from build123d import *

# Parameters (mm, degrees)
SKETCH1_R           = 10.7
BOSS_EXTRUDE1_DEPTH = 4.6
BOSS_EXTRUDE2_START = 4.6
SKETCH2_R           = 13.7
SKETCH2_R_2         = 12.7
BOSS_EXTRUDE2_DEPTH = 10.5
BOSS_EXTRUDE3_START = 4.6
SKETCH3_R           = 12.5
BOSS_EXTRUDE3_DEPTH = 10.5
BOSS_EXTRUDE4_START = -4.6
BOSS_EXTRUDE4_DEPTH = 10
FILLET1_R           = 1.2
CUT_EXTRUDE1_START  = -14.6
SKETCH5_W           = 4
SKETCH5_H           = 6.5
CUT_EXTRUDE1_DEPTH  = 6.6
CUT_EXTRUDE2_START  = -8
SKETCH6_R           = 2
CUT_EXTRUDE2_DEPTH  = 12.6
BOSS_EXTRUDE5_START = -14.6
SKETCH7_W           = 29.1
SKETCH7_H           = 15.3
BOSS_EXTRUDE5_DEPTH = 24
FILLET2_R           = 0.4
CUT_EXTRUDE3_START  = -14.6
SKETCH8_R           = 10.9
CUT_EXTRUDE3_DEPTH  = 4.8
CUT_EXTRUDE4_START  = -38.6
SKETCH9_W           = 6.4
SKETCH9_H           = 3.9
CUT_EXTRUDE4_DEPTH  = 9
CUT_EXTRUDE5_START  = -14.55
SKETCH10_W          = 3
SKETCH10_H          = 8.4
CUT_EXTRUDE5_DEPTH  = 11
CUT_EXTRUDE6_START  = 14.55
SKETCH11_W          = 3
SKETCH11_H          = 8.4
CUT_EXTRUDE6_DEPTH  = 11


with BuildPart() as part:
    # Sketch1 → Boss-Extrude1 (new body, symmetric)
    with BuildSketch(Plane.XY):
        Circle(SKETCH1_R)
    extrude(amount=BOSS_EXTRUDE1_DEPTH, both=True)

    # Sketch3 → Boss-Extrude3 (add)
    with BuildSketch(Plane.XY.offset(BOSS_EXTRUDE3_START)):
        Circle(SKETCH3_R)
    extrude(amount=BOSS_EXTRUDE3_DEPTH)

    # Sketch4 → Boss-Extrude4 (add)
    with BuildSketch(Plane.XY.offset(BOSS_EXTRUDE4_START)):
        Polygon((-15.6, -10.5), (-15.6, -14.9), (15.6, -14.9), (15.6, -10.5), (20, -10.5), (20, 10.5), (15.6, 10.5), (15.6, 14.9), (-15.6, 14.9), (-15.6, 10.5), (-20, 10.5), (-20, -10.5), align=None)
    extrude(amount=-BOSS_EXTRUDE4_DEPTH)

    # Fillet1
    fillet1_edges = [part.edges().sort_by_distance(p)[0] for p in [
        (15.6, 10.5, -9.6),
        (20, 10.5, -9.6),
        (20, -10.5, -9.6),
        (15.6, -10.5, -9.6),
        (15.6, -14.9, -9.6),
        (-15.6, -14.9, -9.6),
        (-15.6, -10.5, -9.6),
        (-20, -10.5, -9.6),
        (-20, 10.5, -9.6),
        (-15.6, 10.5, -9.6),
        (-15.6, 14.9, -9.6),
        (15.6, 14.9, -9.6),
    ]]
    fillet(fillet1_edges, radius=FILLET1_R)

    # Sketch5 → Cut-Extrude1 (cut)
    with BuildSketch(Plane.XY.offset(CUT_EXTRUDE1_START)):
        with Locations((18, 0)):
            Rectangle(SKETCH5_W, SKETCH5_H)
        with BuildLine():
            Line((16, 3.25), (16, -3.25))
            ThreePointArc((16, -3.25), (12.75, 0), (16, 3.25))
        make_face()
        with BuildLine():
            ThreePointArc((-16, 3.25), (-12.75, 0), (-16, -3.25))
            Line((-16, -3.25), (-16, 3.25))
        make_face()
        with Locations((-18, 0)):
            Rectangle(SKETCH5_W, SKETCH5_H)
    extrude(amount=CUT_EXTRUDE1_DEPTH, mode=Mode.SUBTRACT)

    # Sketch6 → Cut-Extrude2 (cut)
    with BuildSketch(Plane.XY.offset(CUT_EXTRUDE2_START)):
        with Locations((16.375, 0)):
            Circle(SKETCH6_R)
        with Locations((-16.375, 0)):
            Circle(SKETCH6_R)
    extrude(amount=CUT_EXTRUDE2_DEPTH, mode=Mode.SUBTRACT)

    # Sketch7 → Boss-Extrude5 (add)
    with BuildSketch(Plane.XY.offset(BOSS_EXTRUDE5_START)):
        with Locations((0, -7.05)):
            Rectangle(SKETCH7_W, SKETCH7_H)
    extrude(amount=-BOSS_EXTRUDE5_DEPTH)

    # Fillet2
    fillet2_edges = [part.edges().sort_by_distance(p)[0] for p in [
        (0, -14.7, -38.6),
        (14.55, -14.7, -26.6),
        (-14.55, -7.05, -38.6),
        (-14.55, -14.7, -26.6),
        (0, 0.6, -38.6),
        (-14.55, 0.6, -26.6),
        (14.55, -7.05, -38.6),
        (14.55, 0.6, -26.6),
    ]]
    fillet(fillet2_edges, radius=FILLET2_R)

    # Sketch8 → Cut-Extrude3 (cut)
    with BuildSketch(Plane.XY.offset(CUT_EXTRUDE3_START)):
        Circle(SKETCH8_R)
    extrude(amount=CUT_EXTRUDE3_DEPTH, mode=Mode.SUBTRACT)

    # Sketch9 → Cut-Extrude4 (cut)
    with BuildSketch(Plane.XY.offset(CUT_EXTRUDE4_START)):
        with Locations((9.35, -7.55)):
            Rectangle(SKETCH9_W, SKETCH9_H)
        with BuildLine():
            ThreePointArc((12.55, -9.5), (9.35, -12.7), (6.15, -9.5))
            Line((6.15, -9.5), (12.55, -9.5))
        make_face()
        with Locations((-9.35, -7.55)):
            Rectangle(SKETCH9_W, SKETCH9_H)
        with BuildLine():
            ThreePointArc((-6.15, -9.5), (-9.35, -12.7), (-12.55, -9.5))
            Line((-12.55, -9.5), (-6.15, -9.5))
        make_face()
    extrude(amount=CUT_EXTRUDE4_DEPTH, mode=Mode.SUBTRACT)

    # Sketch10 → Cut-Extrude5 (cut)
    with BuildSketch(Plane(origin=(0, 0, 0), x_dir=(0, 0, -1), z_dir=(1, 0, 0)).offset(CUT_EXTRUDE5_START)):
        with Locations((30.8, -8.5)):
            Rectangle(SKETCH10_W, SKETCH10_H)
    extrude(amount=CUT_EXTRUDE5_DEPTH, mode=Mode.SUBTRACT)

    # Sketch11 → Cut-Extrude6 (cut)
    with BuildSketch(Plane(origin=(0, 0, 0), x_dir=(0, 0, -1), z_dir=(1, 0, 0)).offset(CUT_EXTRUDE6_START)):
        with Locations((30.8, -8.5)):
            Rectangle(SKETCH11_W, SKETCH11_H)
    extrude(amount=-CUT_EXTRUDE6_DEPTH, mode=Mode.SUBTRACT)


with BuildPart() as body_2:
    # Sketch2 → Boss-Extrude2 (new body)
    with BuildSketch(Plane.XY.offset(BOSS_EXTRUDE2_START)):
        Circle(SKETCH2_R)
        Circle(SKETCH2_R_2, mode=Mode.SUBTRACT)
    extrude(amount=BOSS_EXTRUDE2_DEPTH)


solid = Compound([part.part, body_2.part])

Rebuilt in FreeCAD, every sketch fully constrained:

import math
import FreeCAD as App
import Part
import Sketcher

V = App.Vector
Q = App.Units.Quantity


def edges_at(feature, points):
    """Names of the edges that pass closest to the given points."""
    edges = feature.Shape.Edges
    near = lambda p: min(range(len(edges)), key=lambda i: edges[i].distToShape(Part.Vertex(*p))[0])
    return sorted({f"Edge{near(p) + 1}" for p in points})

doc = App.newDocument("Part")
body = doc.addObject("PartDesign::Body", "Body")

sketch1 = doc.addObject("Sketcher::SketchObject", "Sketch")
body.addObject(sketch1)
sketch1.AttachmentSupport = (doc.XY_Plane, [""])
sketch1.MapMode = "FlatFace"
sketch1.addGeometry(Part.Circle(V(0, 0, 0), V(0, 0, 1), 11), False)
sketch1.addConstraint([
    Sketcher.Constraint("Coincident", 0, 3, -1, 1),
    Sketcher.Constraint("Diameter", 0, Q("21.4 mm")),
])
pad1 = doc.addObject("PartDesign::Pad", "Pad")
body.addObject(pad1)
pad1.Profile = sketch1
pad1.Length = 9.2
pad1.Midplane = True

sketch2 = doc.addObject("Sketcher::SketchObject", "Sketch001")
body.addObject(sketch2)
sketch2.AttachmentSupport = (doc.XY_Plane, [""])
sketch2.MapMode = "FlatFace"
sketch2.AttachmentOffset = App.Placement(V(0, 0, 4.6), App.Rotation())
sketch2.addGeometry(Part.Circle(V(0, 0, 0), V(0, 0, 1), 12), False)
sketch2.addConstraint([
    Sketcher.Constraint("Coincident", 0, 3, -1, 1),
    Sketcher.Constraint("Diameter", 0, Q("25 mm")),
])
pad2 = doc.addObject("PartDesign::Pad", "Pad001")
body.addObject(pad2)
pad2.Profile = sketch2
pad2.Length = 10.5

sketch3 = doc.addObject("Sketcher::SketchObject", "Sketch002")
body.addObject(sketch3)
sketch3.AttachmentSupport = (doc.XY_Plane, [""])
sketch3.MapMode = "FlatFace"
sketch3.AttachmentOffset = App.Placement(V(0, 0, -4.6), App.Rotation())
sketch3.addGeometry([
    Part.LineSegment(V(-15.6, -10.5, 0), V(-15.6, -14.9, 0)),
    Part.LineSegment(V(-15.6, -14.9, 0), V(15.6, -14.9, 0)),
    Part.LineSegment(V(15.6, -14.9, 0), V(15.6, -10.5, 0)),
    Part.LineSegment(V(15.6, -10.5, 0), V(20, -10.5, 0)),
    Part.LineSegment(V(20, -10.5, 0), V(20, 10.5, 0)),
    Part.LineSegment(V(20, 10.5, 0), V(15.6, 10.5, 0)),
    Part.LineSegment(V(15.6, 10.5, 0), V(15.6, 14.9, 0)),
    Part.LineSegment(V(15.6, 14.9, 0), V(-15.6, 14.9, 0)),
    Part.LineSegment(V(-15.6, 14.9, 0), V(-15.6, 10.5, 0)),
    Part.LineSegment(V(-15.6, 10.5, 0), V(-20, 10.5, 0)),
    Part.LineSegment(V(-20, 10.5, 0), V(-20, -10.5, 0)),
    Part.LineSegment(V(-20, -10.5, 0), V(-15.6, -10.5, 0)),
], False)
sketch3.addConstraint([
    Sketcher.Constraint("Coincident", 0, 2, 1, 1),
    Sketcher.Constraint("Coincident", 1, 2, 2, 1),
    Sketcher.Constraint("Coincident", 2, 2, 3, 1),
    Sketcher.Constraint("Coincident", 3, 2, 4, 1),
    Sketcher.Constraint("Coincident", 4, 2, 5, 1),
    Sketcher.Constraint("Coincident", 5, 2, 6, 1),
    Sketcher.Constraint("Coincident", 6, 2, 7, 1),
    Sketcher.Constraint("Coincident", 7, 2, 8, 1),
    Sketcher.Constraint("Coincident", 8, 2, 9, 1),
    Sketcher.Constraint("Coincident", 9, 2, 10, 1),
    Sketcher.Constraint("Coincident", 10, 2, 11, 1),
    Sketcher.Constraint("Coincident", 11, 2, 0, 1),
    Sketcher.Constraint("Vertical", 0),
    Sketcher.Constraint("Horizontal", 1),
    Sketcher.Constraint("Vertical", 2),
    Sketcher.Constraint("Horizontal", 3),
    Sketcher.Constraint("Vertical", 4),
    Sketcher.Constraint("Horizontal", 5),
    Sketcher.Constraint("Vertical", 6),
    Sketcher.Constraint("Horizontal", 7),
    Sketcher.Constraint("Vertical", 8),
    Sketcher.Constraint("Horizontal", 9),
    Sketcher.Constraint("Vertical", 10),
    Sketcher.Constraint("Horizontal", 11),
    Sketcher.Constraint("Symmetric", 0, 2, 6, 2, -1, 1),
    Sketcher.Constraint("Symmetric", 2, 2, 8, 2, -1, 1),
    Sketcher.Constraint("Symmetric", 4, 2, 10, 2, -1, 1),
    Sketcher.Constraint("Symmetric", 5, 2, 8, 2, -2),
    Sketcher.Constraint("Equal", 11, 0),
    Sketcher.Constraint("DistanceY", 4, 1, 4, 2, Q("21 mm")),
    Sketcher.Constraint("DistanceX", 1, 1, 1, 2, Q("31.2 mm")),
    Sketcher.Constraint("DistanceX", 3, 1, 3, 2, Q("4.4 mm")),
])
pad3 = doc.addObject("PartDesign::Pad", "Pad002")
body.addObject(pad3)
pad3.Profile = sketch3
pad3.Length = 10
pad3.Reversed = True
doc.recompute()

fillet = doc.addObject("PartDesign::Fillet", "Fillet")
body.addObject(fillet)
fillet.Base = (pad3, edges_at(pad3, [
    (15.6, 10.5, -9.6),
    (20, 10.5, -9.6),
    (20, -10.5, -9.6),
    (15.6, -10.5, -9.6),
    (15.6, -14.9, -9.6),
    (-15.6, -14.9, -9.6),
    (-15.6, -10.5, -9.6),
    (-20, -10.5, -9.6),
    (-20, 10.5, -9.6),
    (-15.6, 10.5, -9.6),
    (-15.6, 14.9, -9.6),
    (15.6, 14.9, -9.6),
]))
fillet.Radius = 1.2

sketch4 = doc.addObject("Sketcher::SketchObject", "Sketch003")
body.addObject(sketch4)
sketch4.AttachmentSupport = (doc.XY_Plane, [""])
sketch4.MapMode = "FlatFace"
sketch4.AttachmentOffset = App.Placement(V(0, 0, -14.6), App.Rotation())
sketch4.addGeometry([
    Part.LineSegment(V(16, -3.2, 0), V(20, -3.2, 0)),
    Part.LineSegment(V(20, -3.2, 0), V(20, 3.2, 0)),
    Part.LineSegment(V(20, 3.2, 0), V(16, 3.2, 0)),
    Part.ArcOfCircle(Part.Circle(V(16, 0, 0), V(0, 0, 1), 3.2), math.radians(90), math.radians(270)),
    Part.ArcOfCircle(Part.Circle(V(-16, 0, 0), V(0, 0, 1), 3.2), math.radians(-90), math.radians(90)),
    Part.LineSegment(V(-16, 3.2, 0), V(-20, 3.2, 0)),
    Part.LineSegment(V(-20, 3.2, 0), V(-20, -3.2, 0)),
    Part.LineSegment(V(-20, -3.2, 0), V(-16, -3.2, 0)),
], False)
sketch4.addConstraint([
    Sketcher.Constraint("Coincident", 0, 2, 1, 1),
    Sketcher.Constraint("Coincident", 1, 2, 2, 1),
    Sketcher.Constraint("Tangent", 2, 2, 3, 1),
    Sketcher.Constraint("Tangent", 3, 2, 0, 1),
    Sketcher.Constraint("Tangent", 4, 2, 5, 1),
    Sketcher.Constraint("Coincident", 5, 2, 6, 1),
    Sketcher.Constraint("Coincident", 6, 2, 7, 1),
    Sketcher.Constraint("Tangent", 7, 2, 4, 1),
    Sketcher.Constraint("Horizontal", 0),
    Sketcher.Constraint("Vertical", 1),
    Sketcher.Constraint("Horizontal", 2),
    Sketcher.Constraint("Horizontal", 5),
    Sketcher.Constraint("Vertical", 6),
    Sketcher.Constraint("Horizontal", 7),
    Sketcher.Constraint("Equal", 3, 4),
    Sketcher.Constraint("Symmetric", 3, 3, 4, 3, -1, 1),
    Sketcher.Constraint("Symmetric", 1, 2, 5, 2, -2),
    Sketcher.Constraint("DistanceX", 0, 1, 0, 2, Q("4 mm")),
    Sketcher.Constraint("Radius", 3, Q("3.25 mm")),
    Sketcher.Constraint("DistanceX", -1, 1, 3, 3, Q("16 mm")),
])
pocket1 = doc.addObject("PartDesign::Pocket", "Pocket")
body.addObject(pocket1)
pocket1.Profile = sketch4
pocket1.Length = 6.6
pocket1.Reversed = True

sketch5 = doc.addObject("Sketcher::SketchObject", "Sketch004")
body.addObject(sketch5)
sketch5.AttachmentSupport = (doc.XY_Plane, [""])
sketch5.MapMode = "FlatFace"
sketch5.AttachmentOffset = App.Placement(V(0, 0, -8), App.Rotation())
sketch5.addGeometry([
    Part.Circle(V(16.4, 0, 0), V(0, 0, 1), 2),
    Part.Circle(V(-16.4, 0, 0), V(0, 0, 1), 2),
], False)
sketch5.addConstraint([
    Sketcher.Constraint("Equal", 0, 1),
    Sketcher.Constraint("Symmetric", 0, 3, 1, 3, -1, 1),
    Sketcher.Constraint("PointOnObject", 0, 3, -1),
    Sketcher.Constraint("Diameter", 0, Q("4 mm")),
    Sketcher.Constraint("DistanceX", 1, 3, 0, 3, Q("32.75 mm")),
])
pocket2 = doc.addObject("PartDesign::Pocket", "Pocket001")
body.addObject(pocket2)
pocket2.Profile = sketch5
pocket2.Length = 12.6
pocket2.Reversed = True

sketch6 = doc.addObject("Sketcher::SketchObject", "Sketch005")
body.addObject(sketch6)
sketch6.AttachmentSupport = (doc.XY_Plane, [""])
sketch6.MapMode = "FlatFace"
sketch6.AttachmentOffset = App.Placement(V(0, 0, -14.6), App.Rotation())
sketch6.addGeometry([
    Part.LineSegment(V(-15, 1, 0), V(-15, -15, 0)),
    Part.LineSegment(V(-15, -15, 0), V(15, -15, 0)),
    Part.LineSegment(V(15, -15, 0), V(15, 1, 0)),
    Part.LineSegment(V(15, 1, 0), V(-15, 1, 0)),
], False)
sketch6.addConstraint([
    Sketcher.Constraint("Coincident", 0, 2, 1, 1),
    Sketcher.Constraint("Coincident", 1, 2, 2, 1),
    Sketcher.Constraint("Coincident", 2, 2, 3, 1),
    Sketcher.Constraint("Coincident", 3, 2, 0, 1),
    Sketcher.Constraint("Vertical", 0),
    Sketcher.Constraint("Horizontal", 1),
    Sketcher.Constraint("Vertical", 2),
    Sketcher.Constraint("Horizontal", 3),
    Sketcher.Constraint("DistanceX", 1, 1, 1, 2, Q("29.1 mm")),
    Sketcher.Constraint("DistanceY", 0, 2, 0, 1, Q("15.3 mm")),
    Sketcher.Constraint("DistanceY", 0, 2, -1, 1, Q("14.7 mm")),
    Sketcher.Constraint("DistanceX", 0, 2, -1, 1, Q("14.55 mm")),
])
pad4 = doc.addObject("PartDesign::Pad", "Pad003")
body.addObject(pad4)
pad4.Profile = sketch6
pad4.Length = 24
pad4.Reversed = True
doc.recompute()

fillet2 = doc.addObject("PartDesign::Fillet", "Fillet001")
body.addObject(fillet2)
fillet2.Base = (pad4, edges_at(pad4, [
    (0, -14.7, -38.6),
    (14.55, -14.7, -26.6),
    (-14.55, -7.05, -38.6),
    (-14.55, -14.7, -26.6),
    (0, 0.6, -38.6),
    (-14.55, 0.6, -26.6),
    (14.55, -7.05, -38.6),
    (14.55, 0.6, -26.6),
]))
fillet2.Radius = 0.4

sketch7 = doc.addObject("Sketcher::SketchObject", "Sketch006")
body.addObject(sketch7)
sketch7.AttachmentSupport = (doc.XY_Plane, [""])
sketch7.MapMode = "FlatFace"
sketch7.AttachmentOffset = App.Placement(V(0, 0, -14.6), App.Rotation())
sketch7.addGeometry(Part.Circle(V(0, 0, 0), V(0, 0, 1), 11), False)
sketch7.addConstraint([
    Sketcher.Constraint("Coincident", 0, 3, -1, 1),
    Sketcher.Constraint("Diameter", 0, Q("21.8 mm")),
])
pocket3 = doc.addObject("PartDesign::Pocket", "Pocket002")
body.addObject(pocket3)
pocket3.Profile = sketch7
pocket3.Length = 4.8
pocket3.Reversed = True

sketch8 = doc.addObject("Sketcher::SketchObject", "Sketch007")
body.addObject(sketch8)
sketch8.AttachmentSupport = (doc.XY_Plane, [""])
sketch8.MapMode = "FlatFace"
sketch8.AttachmentOffset = App.Placement(V(0, 0, -38.6), App.Rotation())
sketch8.addGeometry([
    Part.LineSegment(V(6.2, -5.6, 0), V(6.2, -9.5, 0)),
    Part.ArcOfCircle(Part.Circle(V(9.3, -9.5, 0), V(0, 0, 1), 3.2), math.radians(180), math.radians(360)),
    Part.LineSegment(V(12.6, -9.5, 0), V(12.6, -5.6, 0)),
    Part.LineSegment(V(12.6, -5.6, 0), V(6.2, -5.6, 0)),
    Part.LineSegment(V(-12.6, -5.6, 0), V(-12.6, -9.5, 0)),
    Part.ArcOfCircle(Part.Circle(V(-9.3, -9.5, 0), V(0, 0, 1), 3.2), math.radians(180), math.radians(360)),
    Part.LineSegment(V(-6.2, -9.5, 0), V(-6.2, -5.6, 0)),
    Part.LineSegment(V(-6.2, -5.6, 0), V(-12.6, -5.6, 0)),
], False)
sketch8.addConstraint([
    Sketcher.Constraint("Tangent", 0, 2, 1, 1),
    Sketcher.Constraint("Tangent", 1, 2, 2, 1),
    Sketcher.Constraint("Coincident", 2, 2, 3, 1),
    Sketcher.Constraint("Coincident", 3, 2, 0, 1),
    Sketcher.Constraint("Tangent", 4, 2, 5, 1),
    Sketcher.Constraint("Tangent", 5, 2, 6, 1),
    Sketcher.Constraint("Coincident", 6, 2, 7, 1),
    Sketcher.Constraint("Coincident", 7, 2, 4, 1),
    Sketcher.Constraint("Vertical", 0),
    Sketcher.Constraint("Vertical", 2),
    Sketcher.Constraint("Horizontal", 3),
    Sketcher.Constraint("Vertical", 4),
    Sketcher.Constraint("Vertical", 6),
    Sketcher.Constraint("Horizontal", 7),
    Sketcher.Constraint("Equal", 1, 5),
    Sketcher.Constraint("Symmetric", 1, 3, 5, 3, -2),
    Sketcher.Constraint("Horizontal", 3, 2, 6, 2),
    Sketcher.Constraint("Radius", 1, Q("3.2 mm")),
    Sketcher.Constraint("DistanceY", 0, 2, 0, 1, Q("3.9 mm")),
    Sketcher.Constraint("DistanceY", 1, 3, -1, 1, Q("9.5 mm")),
    Sketcher.Constraint("DistanceX", 5, 3, 1, 3, Q("18.7 mm")),
])
pocket4 = doc.addObject("PartDesign::Pocket", "Pocket003")
body.addObject(pocket4)
pocket4.Profile = sketch8
pocket4.Length = 9
pocket4.Reversed = True

sketch9 = doc.addObject("Sketcher::SketchObject", "Sketch008")
body.addObject(sketch9)
sketch9.AttachmentSupport = (doc.YZ_Plane, [""])
sketch9.MapMode = "FlatFace"
sketch9.AttachmentOffset = App.Placement(V(0, 0, -14.55), App.Rotation())
sketch9.addGeometry([
    Part.LineSegment(V(-4.3, -29.3, 0), V(-12.7, -29.3, 0)),
    Part.LineSegment(V(-12.7, -29.3, 0), V(-12.7, -32.3, 0)),
    Part.LineSegment(V(-12.7, -32.3, 0), V(-4.3, -32.3, 0)),
    Part.LineSegment(V(-4.3, -32.3, 0), V(-4.3, -29.3, 0)),
], False)
sketch9.addConstraint([
    Sketcher.Constraint("Coincident", 0, 2, 1, 1),
    Sketcher.Constraint("Coincident", 1, 2, 2, 1),
    Sketcher.Constraint("Coincident", 2, 2, 3, 1),
    Sketcher.Constraint("Coincident", 3, 2, 0, 1),
    Sketcher.Constraint("Horizontal", 0),
    Sketcher.Constraint("Vertical", 1),
    Sketcher.Constraint("Horizontal", 2),
    Sketcher.Constraint("Vertical", 3),
    Sketcher.Constraint("DistanceY", 1, 2, 1, 1, Q("3 mm")),
    Sketcher.Constraint("DistanceX", 0, 2, 0, 1, Q("8.4 mm")),
    Sketcher.Constraint("DistanceX", 0, 2, -1, 1, Q("12.7 mm")),
    Sketcher.Constraint("DistanceY", 0, 2, -1, 1, Q("29.3 mm")),
])
pocket5 = doc.addObject("PartDesign::Pocket", "Pocket004")
body.addObject(pocket5)
pocket5.Profile = sketch9
pocket5.Length = 11
pocket5.Reversed = True

sketch10 = doc.addObject("Sketcher::SketchObject", "Sketch009")
body.addObject(sketch10)
sketch10.AttachmentSupport = (doc.YZ_Plane, [""])
sketch10.MapMode = "FlatFace"
sketch10.AttachmentOffset = App.Placement(V(0, 0, 14.55), App.Rotation())
sketch10.addGeometry([
    Part.LineSegment(V(-4.3, -29.3, 0), V(-12.7, -29.3, 0)),
    Part.LineSegment(V(-12.7, -29.3, 0), V(-12.7, -32.3, 0)),
    Part.LineSegment(V(-12.7, -32.3, 0), V(-4.3, -32.3, 0)),
    Part.LineSegment(V(-4.3, -32.3, 0), V(-4.3, -29.3, 0)),
], False)
sketch10.addConstraint([
    Sketcher.Constraint("Coincident", 0, 2, 1, 1),
    Sketcher.Constraint("Coincident", 1, 2, 2, 1),
    Sketcher.Constraint("Coincident", 2, 2, 3, 1),
    Sketcher.Constraint("Coincident", 3, 2, 0, 1),
    Sketcher.Constraint("Horizontal", 0),
    Sketcher.Constraint("Vertical", 1),
    Sketcher.Constraint("Horizontal", 2),
    Sketcher.Constraint("Vertical", 3),
    Sketcher.Constraint("DistanceY", 1, 2, 1, 1, Q("3 mm")),
    Sketcher.Constraint("DistanceX", 0, 2, 0, 1, Q("8.4 mm")),
    Sketcher.Constraint("DistanceX", 0, 2, -1, 1, Q("12.7 mm")),
    Sketcher.Constraint("DistanceY", 0, 2, -1, 1, Q("29.3 mm")),
])
pocket6 = doc.addObject("PartDesign::Pocket", "Pocket005")
body.addObject(pocket6)
pocket6.Profile = sketch10
pocket6.Length = 11
body2 = doc.addObject("PartDesign::Body", "Body001")

sketch11 = doc.addObject("Sketcher::SketchObject", "Sketch010")
body2.addObject(sketch11)
sketch11.AttachmentSupport = (doc.getObject("XY_Plane001"), [""])
sketch11.MapMode = "FlatFace"
sketch11.AttachmentOffset = App.Placement(V(0, 0, 4.6), App.Rotation())
sketch11.addGeometry([
    Part.Circle(V(0, 0, 0), V(0, 0, 1), 14),
    Part.Circle(V(0, 0, 0), V(0, 0, 1), 13),
], False)
sketch11.addConstraint([
    Sketcher.Constraint("Coincident", 0, 3, -1, 1),
    Sketcher.Constraint("Coincident", 1, 3, -1, 1),
    Sketcher.Constraint("Diameter", 0, Q("27.4 mm")),
    Sketcher.Constraint("Diameter", 1, Q("25.4 mm")),
])
pad5 = doc.addObject("PartDesign::Pad", "Pad004")
body2.addObject(pad5)
pad5.Profile = sketch11
pad5.Length = 10.5

doc.recompute()
